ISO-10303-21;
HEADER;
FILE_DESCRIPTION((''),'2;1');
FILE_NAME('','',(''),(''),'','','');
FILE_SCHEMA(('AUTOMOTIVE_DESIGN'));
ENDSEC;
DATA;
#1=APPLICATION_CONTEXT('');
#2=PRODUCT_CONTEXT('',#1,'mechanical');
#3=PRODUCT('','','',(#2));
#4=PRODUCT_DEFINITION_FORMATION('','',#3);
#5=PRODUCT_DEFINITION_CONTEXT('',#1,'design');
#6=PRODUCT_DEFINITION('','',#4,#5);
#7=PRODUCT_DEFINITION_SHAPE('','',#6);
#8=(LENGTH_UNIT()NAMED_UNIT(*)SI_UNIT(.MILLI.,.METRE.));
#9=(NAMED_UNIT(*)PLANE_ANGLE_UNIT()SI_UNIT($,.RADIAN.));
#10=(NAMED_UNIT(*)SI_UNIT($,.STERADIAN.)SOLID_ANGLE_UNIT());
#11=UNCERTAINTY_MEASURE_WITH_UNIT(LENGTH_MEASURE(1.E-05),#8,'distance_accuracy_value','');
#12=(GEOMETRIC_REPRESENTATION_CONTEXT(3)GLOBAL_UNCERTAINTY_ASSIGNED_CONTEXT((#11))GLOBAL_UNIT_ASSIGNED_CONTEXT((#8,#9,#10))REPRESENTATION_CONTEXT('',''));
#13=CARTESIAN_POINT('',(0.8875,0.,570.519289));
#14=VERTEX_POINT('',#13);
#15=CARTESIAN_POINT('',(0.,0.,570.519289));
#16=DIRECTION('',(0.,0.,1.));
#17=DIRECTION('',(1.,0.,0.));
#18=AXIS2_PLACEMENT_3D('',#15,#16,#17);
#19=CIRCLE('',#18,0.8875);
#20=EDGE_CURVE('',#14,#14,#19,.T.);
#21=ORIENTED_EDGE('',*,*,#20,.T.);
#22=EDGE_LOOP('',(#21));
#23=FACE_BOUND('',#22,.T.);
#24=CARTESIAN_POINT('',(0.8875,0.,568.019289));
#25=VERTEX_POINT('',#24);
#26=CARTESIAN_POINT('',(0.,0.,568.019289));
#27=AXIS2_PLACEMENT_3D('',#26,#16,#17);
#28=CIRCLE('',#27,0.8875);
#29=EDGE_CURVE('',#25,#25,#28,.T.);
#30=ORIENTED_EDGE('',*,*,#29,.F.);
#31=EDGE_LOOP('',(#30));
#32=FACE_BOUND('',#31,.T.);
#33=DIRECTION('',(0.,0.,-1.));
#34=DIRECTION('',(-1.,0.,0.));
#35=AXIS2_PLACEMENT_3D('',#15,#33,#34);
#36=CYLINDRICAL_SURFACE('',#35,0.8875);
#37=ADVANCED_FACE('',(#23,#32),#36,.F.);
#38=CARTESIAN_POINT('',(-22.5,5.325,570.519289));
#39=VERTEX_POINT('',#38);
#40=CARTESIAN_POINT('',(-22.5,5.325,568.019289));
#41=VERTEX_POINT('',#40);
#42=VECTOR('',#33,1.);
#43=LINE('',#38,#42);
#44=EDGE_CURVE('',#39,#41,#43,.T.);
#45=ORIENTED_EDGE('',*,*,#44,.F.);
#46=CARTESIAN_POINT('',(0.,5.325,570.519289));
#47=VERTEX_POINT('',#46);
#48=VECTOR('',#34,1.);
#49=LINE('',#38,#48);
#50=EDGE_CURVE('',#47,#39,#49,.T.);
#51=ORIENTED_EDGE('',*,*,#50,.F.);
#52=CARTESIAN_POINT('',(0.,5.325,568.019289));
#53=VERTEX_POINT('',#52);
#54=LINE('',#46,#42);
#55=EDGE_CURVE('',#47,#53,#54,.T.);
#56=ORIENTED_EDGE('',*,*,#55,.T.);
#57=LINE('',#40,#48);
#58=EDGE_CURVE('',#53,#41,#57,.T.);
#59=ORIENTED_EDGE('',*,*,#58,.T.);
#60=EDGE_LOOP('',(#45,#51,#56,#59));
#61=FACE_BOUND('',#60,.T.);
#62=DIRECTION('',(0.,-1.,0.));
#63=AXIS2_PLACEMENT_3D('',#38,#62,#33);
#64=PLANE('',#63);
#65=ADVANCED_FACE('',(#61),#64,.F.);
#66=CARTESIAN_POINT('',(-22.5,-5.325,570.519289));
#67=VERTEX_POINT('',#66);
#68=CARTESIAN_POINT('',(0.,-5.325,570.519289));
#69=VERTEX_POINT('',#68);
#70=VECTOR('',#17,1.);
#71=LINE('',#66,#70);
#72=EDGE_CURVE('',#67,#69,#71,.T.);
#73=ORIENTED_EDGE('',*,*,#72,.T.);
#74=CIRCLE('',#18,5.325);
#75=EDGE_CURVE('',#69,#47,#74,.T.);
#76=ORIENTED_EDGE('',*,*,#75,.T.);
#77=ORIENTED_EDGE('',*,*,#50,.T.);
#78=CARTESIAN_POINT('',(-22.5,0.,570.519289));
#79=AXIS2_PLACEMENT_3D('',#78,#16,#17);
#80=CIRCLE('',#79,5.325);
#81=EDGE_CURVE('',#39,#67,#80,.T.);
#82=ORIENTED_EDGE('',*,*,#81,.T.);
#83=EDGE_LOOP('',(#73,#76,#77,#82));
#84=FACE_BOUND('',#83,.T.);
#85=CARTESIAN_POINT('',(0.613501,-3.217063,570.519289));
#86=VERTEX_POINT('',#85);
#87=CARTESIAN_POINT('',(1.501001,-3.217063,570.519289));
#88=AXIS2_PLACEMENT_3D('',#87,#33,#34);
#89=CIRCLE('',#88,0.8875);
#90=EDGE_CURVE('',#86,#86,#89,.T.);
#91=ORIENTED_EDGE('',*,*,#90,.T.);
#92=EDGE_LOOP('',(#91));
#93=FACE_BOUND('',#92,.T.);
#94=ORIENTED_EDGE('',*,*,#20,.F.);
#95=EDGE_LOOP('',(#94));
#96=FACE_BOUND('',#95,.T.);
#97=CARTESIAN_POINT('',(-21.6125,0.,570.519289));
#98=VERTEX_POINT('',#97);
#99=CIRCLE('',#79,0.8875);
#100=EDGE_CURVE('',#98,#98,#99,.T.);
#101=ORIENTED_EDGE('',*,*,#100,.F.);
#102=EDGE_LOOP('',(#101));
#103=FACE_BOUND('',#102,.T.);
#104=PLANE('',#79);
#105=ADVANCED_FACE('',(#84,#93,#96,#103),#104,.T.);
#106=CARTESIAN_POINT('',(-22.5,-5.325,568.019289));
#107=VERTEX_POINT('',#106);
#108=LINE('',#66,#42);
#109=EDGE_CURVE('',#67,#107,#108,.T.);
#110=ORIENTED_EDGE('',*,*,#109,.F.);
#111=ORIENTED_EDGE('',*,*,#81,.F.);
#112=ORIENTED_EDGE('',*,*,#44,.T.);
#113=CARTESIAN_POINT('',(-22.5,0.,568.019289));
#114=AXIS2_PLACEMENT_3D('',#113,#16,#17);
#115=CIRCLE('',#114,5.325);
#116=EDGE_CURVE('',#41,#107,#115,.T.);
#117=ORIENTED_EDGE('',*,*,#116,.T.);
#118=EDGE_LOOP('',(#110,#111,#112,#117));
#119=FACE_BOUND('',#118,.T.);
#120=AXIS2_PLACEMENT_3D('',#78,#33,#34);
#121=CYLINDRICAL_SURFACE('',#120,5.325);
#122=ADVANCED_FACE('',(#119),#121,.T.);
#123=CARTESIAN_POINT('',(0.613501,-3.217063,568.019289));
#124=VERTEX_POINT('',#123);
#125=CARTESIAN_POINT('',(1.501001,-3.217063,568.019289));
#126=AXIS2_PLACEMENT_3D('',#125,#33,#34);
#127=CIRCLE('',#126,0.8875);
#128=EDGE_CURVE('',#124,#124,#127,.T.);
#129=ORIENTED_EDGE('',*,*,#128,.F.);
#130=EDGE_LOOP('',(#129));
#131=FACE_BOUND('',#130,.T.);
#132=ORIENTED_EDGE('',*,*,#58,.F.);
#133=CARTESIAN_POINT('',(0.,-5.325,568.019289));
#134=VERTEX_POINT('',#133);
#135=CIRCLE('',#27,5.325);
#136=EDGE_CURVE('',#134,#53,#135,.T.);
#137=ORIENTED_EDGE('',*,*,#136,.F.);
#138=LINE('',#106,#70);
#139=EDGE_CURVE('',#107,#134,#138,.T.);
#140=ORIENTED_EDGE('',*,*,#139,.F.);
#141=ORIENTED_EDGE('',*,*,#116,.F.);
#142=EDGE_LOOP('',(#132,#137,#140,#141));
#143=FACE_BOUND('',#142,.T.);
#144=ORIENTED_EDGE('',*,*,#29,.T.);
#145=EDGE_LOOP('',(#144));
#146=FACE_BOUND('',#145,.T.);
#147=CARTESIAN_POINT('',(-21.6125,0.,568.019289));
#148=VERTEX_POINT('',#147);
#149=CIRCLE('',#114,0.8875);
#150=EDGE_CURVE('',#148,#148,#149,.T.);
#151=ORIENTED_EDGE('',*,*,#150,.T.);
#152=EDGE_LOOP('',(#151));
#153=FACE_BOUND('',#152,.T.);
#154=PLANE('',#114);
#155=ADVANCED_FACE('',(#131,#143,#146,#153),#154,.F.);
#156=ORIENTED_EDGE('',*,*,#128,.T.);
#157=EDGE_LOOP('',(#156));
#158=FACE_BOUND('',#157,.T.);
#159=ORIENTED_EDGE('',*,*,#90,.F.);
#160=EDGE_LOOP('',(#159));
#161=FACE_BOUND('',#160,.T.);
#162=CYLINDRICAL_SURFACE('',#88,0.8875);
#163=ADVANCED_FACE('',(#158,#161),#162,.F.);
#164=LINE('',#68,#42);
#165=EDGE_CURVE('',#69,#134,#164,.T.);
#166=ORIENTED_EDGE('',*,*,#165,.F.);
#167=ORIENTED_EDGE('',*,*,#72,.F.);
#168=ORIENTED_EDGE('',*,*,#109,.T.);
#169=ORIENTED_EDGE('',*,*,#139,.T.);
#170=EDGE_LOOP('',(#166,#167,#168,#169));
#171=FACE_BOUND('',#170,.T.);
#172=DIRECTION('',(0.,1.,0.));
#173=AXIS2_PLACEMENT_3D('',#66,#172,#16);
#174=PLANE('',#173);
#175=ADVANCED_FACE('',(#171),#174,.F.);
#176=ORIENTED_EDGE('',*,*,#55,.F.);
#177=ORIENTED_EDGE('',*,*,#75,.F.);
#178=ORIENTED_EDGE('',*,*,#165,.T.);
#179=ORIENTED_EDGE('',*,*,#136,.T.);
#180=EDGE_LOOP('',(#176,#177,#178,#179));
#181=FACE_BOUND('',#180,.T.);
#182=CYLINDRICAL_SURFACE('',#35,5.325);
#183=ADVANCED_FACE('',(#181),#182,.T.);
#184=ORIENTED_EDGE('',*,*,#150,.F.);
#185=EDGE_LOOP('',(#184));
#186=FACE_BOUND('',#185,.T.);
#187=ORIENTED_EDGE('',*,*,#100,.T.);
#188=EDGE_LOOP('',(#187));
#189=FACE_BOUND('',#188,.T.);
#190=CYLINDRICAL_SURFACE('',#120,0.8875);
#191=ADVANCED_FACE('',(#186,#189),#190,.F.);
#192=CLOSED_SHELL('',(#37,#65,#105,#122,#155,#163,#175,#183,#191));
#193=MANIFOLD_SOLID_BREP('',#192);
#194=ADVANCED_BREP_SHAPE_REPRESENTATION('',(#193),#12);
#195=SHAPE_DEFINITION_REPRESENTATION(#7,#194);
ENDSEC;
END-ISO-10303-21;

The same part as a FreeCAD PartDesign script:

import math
import FreeCAD as App
import Part
import Sketcher
Q = App.Units.Quantity

doc = App.newDocument("Part")
params = doc.addObject("Spreadsheet::Sheet", "Params")
for row, (alias, value) in enumerate([
    ("sketch1_width", "22.5 mm"),
    ("pad1_length", "2.5 mm"),
], start=1):
    params.set(f"A{row}", alias)
    params.set(f"B{row}", "=" + value)
    params.setAlias(f"B{row}", alias)

body = doc.addObject("PartDesign::Body", "Body")

sketch1 = body.newObject("Sketcher::SketchObject", "Sketch")
sketch1.AttachmentSupport = (doc.getObject("XY_Plane"), [""])
sketch1.MapMode = "FlatFace"
sketch1.AttachmentOffset = App.Placement(App.Vector(0, 0, 568.019289), App.Rotation())
sketch1.addGeometry(Part.LineSegment(App.Vector(0, 5.325, 0), App.Vector(-22.5, 5.325, 0)), False)
sketch1.addGeometry(Part.ArcOfCircle(Part.Circle(App.Vector(-22.5, 0, 0), App.Vector(0, 0, 1), 5.325), math.radians(90), math.radians(270)), False)
sketch1.addGeometry(Part.LineSegment(App.Vector(-22.5, -5.325, 0), App.Vector(0, -5.325, 0)), False)
sketch1.addGeometry(Part.ArcOfCircle(Part.Circle(App.Vector(0, 0, 0), App.Vector(0, 0, 1), 5.325), math.radians(-90), math.radians(90)), False)
sketch1.addGeometry(Part.Circle(App.Vector(0, 0, 0), App.Vector(0, 0, 1), 0.8875), False)
sketch1.addGeometry(Part.Circle(App.Vector(-22.5, 0, 0), App.Vector(0, 0, 1), 0.8875), False)
sketch1.addConstraint(Sketcher.Constraint("Tangent", 0, 2, 1, 1))
sketch1.addConstraint(Sketcher.Constraint("Tangent", 1, 2, 2, 1))
sketch1.addConstraint(Sketcher.Constraint("Tangent", 2, 2, 3, 1))
sketch1.addConstraint(Sketcher.Constraint("Tangent", 3, 2, 0, 1))
sketch1.addConstraint(Sketcher.Constraint("Horizontal", 0))
sketch1.addConstraint(Sketcher.Constraint("Horizontal", 2))
sketch1.addConstraint(Sketcher.Constraint("Coincident", 3, 3, -1, 1))
sketch1.addConstraint(Sketcher.Constraint("Coincident", 4, 3, -1, 1))
sketch1.addConstraint(Sketcher.Constraint("Coincident", 5, 3, 1, 3))
sketch1.addConstraint(Sketcher.Constraint("Equal", 4, 5))
sketch1.addConstraint(Sketcher.Constraint("Diameter", 4, Q("1.775 mm")))
sketch1.addConstraint(Sketcher.Constraint("DistanceX", 0, 2, 0, 1, Q("22.5 mm")))
sketch1.addConstraint(Sketcher.Constraint("Radius", 1, Q("5.325 mm")))
sketch1.setExpression("Constraints[11]", "Params.sketch1_width")
pad1 = body.newObject("PartDesign::Pad", "Pad")
pad1.Profile = sketch1
pad1.setExpression("Length", "Params.pad1_length")

sketch2 = body.newObject("Sketcher::SketchObject", "Sketch001")
sketch2.AttachmentSupport = (doc.getObject("XY_Plane"), [""])
sketch2.MapMode = "FlatFace"
sketch2.AttachmentOffset = App.Placement(App.Vector(0, 0, 568.019289), App.Rotation())
sketch2.addGeometry(Part.Circle(App.Vector(1.501001, -3.217063, 0), App.Vector(0, 0, 1), 0.8875), False)
sketch2.addConstraint(Sketcher.Constraint("Diameter", 0, Q("1.775 mm")))
sketch2.addConstraint(Sketcher.Constraint("DistanceX", -1, 1, 0, 3, Q("1.501001 mm")))
sketch2.addConstraint(Sketcher.Constraint("DistanceY", 0, 3, -1, 1, Q("3.217063 mm")))
pocket1 = body.newObject("PartDesign::Pocket", "Pocket")
pocket1.Profile = sketch2
pocket1.Type = "ThroughAll"
pocket1.Reversed = True

doc.recompute()
